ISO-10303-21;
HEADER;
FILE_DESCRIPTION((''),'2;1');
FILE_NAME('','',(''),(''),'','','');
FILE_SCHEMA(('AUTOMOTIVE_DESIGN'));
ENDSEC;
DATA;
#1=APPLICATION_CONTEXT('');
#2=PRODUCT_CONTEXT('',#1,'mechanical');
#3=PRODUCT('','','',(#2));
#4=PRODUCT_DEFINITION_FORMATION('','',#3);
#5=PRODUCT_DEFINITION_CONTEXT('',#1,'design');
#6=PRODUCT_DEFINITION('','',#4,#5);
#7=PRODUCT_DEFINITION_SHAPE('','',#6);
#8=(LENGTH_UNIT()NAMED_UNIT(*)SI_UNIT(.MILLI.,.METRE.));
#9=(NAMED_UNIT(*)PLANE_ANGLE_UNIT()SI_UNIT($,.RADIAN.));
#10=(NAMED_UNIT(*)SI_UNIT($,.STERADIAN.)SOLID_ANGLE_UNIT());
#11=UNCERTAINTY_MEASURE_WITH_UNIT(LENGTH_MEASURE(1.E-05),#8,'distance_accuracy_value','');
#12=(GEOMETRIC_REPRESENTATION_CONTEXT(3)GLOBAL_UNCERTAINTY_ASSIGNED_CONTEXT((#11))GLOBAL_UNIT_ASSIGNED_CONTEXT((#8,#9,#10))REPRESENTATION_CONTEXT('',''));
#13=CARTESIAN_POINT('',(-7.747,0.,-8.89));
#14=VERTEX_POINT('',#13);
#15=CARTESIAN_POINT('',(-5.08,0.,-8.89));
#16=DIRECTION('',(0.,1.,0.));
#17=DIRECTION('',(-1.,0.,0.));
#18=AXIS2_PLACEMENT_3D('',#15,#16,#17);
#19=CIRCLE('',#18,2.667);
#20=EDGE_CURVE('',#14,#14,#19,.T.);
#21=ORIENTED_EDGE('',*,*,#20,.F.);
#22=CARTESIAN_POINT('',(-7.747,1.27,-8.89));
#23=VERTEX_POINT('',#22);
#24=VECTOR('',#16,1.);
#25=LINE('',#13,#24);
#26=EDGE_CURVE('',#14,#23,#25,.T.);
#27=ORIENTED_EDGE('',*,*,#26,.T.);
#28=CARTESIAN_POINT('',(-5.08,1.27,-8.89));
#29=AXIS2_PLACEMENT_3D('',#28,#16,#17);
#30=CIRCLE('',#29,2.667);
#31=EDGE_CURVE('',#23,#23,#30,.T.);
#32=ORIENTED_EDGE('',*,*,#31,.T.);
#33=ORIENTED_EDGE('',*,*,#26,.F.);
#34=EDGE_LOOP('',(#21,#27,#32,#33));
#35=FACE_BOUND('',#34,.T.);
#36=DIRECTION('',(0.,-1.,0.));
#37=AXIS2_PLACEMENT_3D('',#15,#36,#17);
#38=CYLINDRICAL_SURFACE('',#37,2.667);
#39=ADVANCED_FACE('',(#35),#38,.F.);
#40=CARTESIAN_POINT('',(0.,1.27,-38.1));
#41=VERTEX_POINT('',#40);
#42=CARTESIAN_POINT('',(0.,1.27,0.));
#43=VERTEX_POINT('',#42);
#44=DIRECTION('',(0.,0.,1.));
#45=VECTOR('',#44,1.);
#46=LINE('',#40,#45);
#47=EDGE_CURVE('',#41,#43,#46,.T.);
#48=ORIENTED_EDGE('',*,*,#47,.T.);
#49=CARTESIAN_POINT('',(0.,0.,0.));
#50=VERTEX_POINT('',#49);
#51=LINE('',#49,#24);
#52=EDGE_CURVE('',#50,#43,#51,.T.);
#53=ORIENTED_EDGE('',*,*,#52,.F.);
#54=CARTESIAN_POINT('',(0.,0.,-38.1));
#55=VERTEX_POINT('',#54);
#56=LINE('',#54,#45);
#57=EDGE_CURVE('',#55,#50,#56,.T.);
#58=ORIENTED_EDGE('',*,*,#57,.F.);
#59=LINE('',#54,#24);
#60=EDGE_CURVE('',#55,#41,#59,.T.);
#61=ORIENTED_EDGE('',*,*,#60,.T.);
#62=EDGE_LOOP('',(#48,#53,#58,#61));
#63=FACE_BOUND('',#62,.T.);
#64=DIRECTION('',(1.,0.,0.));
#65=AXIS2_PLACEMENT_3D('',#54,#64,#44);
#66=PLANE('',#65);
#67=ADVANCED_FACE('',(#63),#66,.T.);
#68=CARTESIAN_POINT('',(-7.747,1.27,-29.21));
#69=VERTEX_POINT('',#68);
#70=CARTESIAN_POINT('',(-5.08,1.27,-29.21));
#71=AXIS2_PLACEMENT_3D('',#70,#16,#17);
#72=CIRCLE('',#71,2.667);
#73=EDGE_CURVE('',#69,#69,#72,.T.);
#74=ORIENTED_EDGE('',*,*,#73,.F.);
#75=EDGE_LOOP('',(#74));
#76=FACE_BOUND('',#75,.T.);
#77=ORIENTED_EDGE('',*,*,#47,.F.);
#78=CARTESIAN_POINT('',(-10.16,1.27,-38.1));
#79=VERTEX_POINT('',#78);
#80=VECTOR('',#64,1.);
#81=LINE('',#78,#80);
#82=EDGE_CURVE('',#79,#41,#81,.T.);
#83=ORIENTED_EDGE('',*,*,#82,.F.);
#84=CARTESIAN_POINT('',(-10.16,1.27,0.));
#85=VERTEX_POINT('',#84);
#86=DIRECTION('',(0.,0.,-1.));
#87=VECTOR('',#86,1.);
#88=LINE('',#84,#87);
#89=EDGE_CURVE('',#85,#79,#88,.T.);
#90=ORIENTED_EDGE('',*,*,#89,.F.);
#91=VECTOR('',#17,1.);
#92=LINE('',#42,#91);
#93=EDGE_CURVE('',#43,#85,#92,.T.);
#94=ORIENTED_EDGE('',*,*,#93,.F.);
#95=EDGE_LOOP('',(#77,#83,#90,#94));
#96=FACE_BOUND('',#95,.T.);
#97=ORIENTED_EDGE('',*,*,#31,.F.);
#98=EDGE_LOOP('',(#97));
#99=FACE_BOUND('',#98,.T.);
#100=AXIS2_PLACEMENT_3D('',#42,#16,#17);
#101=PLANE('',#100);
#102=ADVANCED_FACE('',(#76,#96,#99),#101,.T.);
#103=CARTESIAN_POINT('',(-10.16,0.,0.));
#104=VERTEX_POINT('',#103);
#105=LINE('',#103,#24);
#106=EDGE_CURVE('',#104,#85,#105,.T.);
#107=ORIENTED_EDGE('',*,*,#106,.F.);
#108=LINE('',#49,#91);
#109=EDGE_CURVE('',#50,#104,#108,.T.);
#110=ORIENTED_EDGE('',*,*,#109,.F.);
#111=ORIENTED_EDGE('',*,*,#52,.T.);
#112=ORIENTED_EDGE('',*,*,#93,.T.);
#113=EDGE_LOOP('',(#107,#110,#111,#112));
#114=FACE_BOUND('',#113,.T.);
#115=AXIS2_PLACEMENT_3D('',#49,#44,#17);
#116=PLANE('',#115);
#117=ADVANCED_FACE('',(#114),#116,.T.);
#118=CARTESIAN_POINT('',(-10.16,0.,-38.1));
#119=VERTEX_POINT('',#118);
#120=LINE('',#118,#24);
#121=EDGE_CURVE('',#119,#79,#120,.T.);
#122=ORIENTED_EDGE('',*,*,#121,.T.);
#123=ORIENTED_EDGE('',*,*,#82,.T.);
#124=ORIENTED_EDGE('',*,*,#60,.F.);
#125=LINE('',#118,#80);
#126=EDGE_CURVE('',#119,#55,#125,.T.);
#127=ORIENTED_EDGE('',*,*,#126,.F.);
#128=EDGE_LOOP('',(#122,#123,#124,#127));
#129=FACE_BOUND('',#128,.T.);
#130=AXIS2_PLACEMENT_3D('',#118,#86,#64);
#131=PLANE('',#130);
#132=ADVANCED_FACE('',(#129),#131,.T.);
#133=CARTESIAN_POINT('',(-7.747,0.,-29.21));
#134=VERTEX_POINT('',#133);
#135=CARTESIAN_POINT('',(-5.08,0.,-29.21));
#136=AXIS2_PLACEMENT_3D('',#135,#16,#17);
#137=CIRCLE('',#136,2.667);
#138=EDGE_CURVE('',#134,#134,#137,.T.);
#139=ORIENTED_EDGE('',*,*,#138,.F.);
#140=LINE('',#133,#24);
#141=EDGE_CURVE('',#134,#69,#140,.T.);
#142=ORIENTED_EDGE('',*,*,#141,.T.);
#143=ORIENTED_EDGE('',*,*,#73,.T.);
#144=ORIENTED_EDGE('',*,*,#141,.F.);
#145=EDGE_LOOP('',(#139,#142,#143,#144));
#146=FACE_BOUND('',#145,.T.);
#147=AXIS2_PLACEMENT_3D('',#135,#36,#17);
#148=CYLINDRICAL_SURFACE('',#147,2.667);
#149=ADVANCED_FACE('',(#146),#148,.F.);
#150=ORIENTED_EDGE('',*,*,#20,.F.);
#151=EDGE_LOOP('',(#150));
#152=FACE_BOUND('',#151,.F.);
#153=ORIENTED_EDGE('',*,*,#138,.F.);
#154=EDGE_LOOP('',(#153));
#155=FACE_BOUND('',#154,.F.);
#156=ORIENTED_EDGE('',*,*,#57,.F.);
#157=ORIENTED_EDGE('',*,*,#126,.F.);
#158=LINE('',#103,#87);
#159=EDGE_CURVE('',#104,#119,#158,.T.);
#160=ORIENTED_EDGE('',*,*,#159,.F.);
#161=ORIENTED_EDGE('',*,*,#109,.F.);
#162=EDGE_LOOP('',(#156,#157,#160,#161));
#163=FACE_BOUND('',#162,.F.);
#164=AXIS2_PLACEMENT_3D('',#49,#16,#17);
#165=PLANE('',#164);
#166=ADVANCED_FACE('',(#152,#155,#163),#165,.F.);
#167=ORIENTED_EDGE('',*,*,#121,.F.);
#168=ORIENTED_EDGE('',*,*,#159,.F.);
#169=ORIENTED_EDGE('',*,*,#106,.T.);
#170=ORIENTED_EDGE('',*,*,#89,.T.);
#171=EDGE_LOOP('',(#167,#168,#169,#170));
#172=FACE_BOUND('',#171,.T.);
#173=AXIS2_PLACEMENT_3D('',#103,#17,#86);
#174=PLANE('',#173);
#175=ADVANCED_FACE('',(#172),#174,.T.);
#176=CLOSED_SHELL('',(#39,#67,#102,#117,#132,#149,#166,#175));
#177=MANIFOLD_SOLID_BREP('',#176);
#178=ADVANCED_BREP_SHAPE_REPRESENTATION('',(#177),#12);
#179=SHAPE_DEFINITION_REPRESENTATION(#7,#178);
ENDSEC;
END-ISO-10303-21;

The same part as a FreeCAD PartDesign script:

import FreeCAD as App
import Part
import Sketcher
Q = App.Units.Quantity


def add_polygon(sketch, points):
    """Adds a closed chain of lines whose ends are joined by coincident constraints."""
    first, n = sketch.GeometryCount, len(points)
    for a, b in zip(points, points[1:] + points[:1]):
        sketch.addGeometry(Part.LineSegment(App.Vector(*a, 0), App.Vector(*b, 0)), False)
    for i in range(n):
        sketch.addConstraint(Sketcher.Constraint("Coincident", first + i, 2, first + (i + 1) % n, 1))

doc = App.newDocument("Part")
params = doc.addObject("Spreadsheet::Sheet", "Params")
for row, (alias, value) in enumerate([
    ("sketch1_diameter", "0.21 in"),
    ("sketch1_width", "0.4 in"),
    ("sketch1_height", "1.5 in"),
    ("pad1_length", "0.05 in"),
], start=1):
    params.set(f"A{row}", alias)
    params.set(f"B{row}", "=" + value)
    params.setAlias(f"B{row}", alias)

body = doc.addObject("PartDesign::Body", "Body")

sketch1 = doc.addObject("Sketcher::SketchObject", "Sketch")
body.addObject(sketch1)
sketch1.AttachmentSupport = (doc.XZ_Plane, [""])
sketch1.MapMode = "FlatFace"
add_polygon(sketch1, [(-10.16, 0), (0, 0), (0, -38.1), (-10.16, -38.1)])
sketch1.addGeometry(Part.Circle(App.Vector(-5.08, -29.21, 0), App.Vector(0, 0, 1), 2.667), False)
sketch1.addGeometry(Part.Circle(App.Vector(-5.08, -8.89, 0), App.Vector(0, 0, 1), 2.667), False)
sketch1.addConstraint([
    Sketcher.Constraint("Horizontal", 0),
    Sketcher.Constraint("Vertical", 1),
    Sketcher.Constraint("Horizontal", 2),
    Sketcher.Constraint("Vertical", 3),
    Sketcher.Constraint("Coincident", 0, 2, -1, 1),
    Sketcher.Constraint("Equal", 4, 5),
    Sketcher.Constraint("Vertical", 4, 3, 5, 3),
    Sketcher.Constraint("Diameter", 4, Q("0.21 in")),
    Sketcher.Constraint("DistanceX", 0, 1, 0, 2, Q("0.4 in")),
    Sketcher.Constraint("DistanceY", 1, 2, 1, 1, Q("1.5 in")),
    Sketcher.Constraint("DistanceX", 4, 3, -1, 1, Q("0.2 in")),
    Sketcher.Constraint("DistanceY", 4, 3, 5, 3, Q("0.8 in")),
    Sketcher.Constraint("DistanceY", 5, 3, -1, 1, Q("0.35 in")),
])
sketch1.setExpression("Constraints[11]", "Params.sketch1_diameter")
sketch1.setExpression("Constraints[12]", "Params.sketch1_width")
sketch1.setExpression("Constraints[13]", "Params.sketch1_height")
pad1 = doc.addObject("PartDesign::Pad", "Pad")
body.addObject(pad1)
pad1.Profile = sketch1
pad1.setExpression("Length", "Params.pad1_length")
pad1.Reversed = True

doc.recompute()
